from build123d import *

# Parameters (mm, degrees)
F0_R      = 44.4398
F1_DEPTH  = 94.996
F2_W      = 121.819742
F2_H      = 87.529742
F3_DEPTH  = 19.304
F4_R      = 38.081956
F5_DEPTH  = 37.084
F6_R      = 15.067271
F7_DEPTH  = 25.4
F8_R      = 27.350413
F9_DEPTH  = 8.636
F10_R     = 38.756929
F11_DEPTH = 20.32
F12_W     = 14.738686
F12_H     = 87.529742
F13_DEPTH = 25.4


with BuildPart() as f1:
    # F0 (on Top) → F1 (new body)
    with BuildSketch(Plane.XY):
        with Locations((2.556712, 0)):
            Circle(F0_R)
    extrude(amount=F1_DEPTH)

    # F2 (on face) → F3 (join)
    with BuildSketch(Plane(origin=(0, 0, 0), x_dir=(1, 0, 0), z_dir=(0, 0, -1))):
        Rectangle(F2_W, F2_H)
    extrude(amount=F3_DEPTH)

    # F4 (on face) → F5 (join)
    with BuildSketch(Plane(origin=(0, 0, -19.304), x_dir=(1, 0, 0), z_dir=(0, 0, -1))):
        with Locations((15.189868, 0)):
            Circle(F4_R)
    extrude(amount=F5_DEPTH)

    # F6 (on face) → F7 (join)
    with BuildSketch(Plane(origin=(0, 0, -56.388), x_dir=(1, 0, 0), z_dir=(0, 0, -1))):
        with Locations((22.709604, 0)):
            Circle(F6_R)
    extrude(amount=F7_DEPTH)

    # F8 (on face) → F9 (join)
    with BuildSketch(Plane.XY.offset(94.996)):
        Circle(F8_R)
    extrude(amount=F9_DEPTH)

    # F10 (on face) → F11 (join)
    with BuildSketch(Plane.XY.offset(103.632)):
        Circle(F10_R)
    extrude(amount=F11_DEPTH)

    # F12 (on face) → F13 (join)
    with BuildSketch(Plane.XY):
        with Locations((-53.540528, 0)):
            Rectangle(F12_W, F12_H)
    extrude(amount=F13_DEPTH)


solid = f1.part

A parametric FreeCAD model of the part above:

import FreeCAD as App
import Part
import Sketcher
from FreeCAD import Vector
Q = App.Units.Quantity

doc = App.newDocument("Part")
body = doc.addObject("PartDesign::Body", "Body")

# Sketch on XY plane
sketch1 = body.newObject("Sketcher::SketchObject", "Sketch")
sketch1.AttachmentSupport = (doc.getObject("XY_Plane"), [""])
sketch1.MapMode = "FlatFace"
sketch1.addGeometry(Part.Circle(Vector(3, 0, 0), Vector(0, 0, 1), 44), False)
sketch1.addConstraint([
    Sketcher.Constraint("PointOnObject", 0, 3, -1),
    Sketcher.Constraint("Diameter", 0, 88.8796),
    Sketcher.Constraint("DistanceX", -1, 1, 0, 3, 2.556712),
])
pad1 = body.newObject("PartDesign::Pad", "Pad")
pad1.Profile = sketch1
pad1.Length = Q("3.74 in")

# Sketch on XY plane
sketch2 = body.newObject("Sketcher::SketchObject", "Sketch001")
sketch2.AttachmentSupport = (doc.getObject("XY_Plane"), [""])
sketch2.MapMode = "FlatFace"
sketch2.addGeometry([
    Part.LineSegment(Vector(-61, -44, 0), Vector(-61, 44, 0)),
    Part.LineSegment(Vector(-61, 44, 0), Vector(61, 44, 0)),
    Part.LineSegment(Vector(61, 44, 0), Vector(61, -44, 0)),
    Part.LineSegment(Vector(61, -44, 0), Vector(-61, -44, 0)),
], False)
sketch2.addConstraint([
    Sketcher.Constraint("Coincident", 0, 2, 1, 1),
    Sketcher.Constraint("Coincident", 1, 2, 2, 1),
    Sketcher.Constraint("Coincident", 2, 2, 3, 1),
    Sketcher.Constraint("Coincident", 3, 2, 0, 1),
    Sketcher.Constraint("Vertical", 0),
    Sketcher.Constraint("Horizontal", 1),
    Sketcher.Constraint("Vertical", 2),
    Sketcher.Constraint("Horizontal", 3),
    Sketcher.Constraint("Symmetric", 0, 2, 2, 2, -1, 1),
    Sketcher.Constraint("DistanceY", 0, 1, 0, 2, 87.529742),
    Sketcher.Constraint("DistanceX", 1, 1, 1, 2, 121.819742),
])
pad2 = body.newObject("PartDesign::Pad", "Pad001")
pad2.Profile = sketch2
pad2.Length = Q("0.76 in")
pad2.Reversed = True

# Sketch on XY plane
sketch3 = body.newObject("Sketcher::SketchObject", "Sketch002")
sketch3.AttachmentSupport = (doc.getObject("XY_Plane"), [""])
sketch3.MapMode = "FlatFace"
sketch3.AttachmentOffset = App.Placement(Vector(0, 0, -0.76 * 25.4), App.Rotation())
sketch3.addGeometry(Part.Circle(Vector(15, 0, 0), Vector(0, 0, 1), 38), False)
sketch3.addConstraint([
    Sketcher.Constraint("PointOnObject", 0, 3, -1),
    Sketcher.Constraint("Diameter", 0, 76.163912),
    Sketcher.Constraint("DistanceX", -1, 1, 0, 3, 15.189868),
])
pad3 = body.newObject("PartDesign::Pad", "Pad002")
pad3.Profile = sketch3
pad3.Length = Q("1.46 in")
pad3.Reversed = True

# Sketch on XY plane
sketch4 = body.newObject("Sketcher::SketchObject", "Sketch003")
sketch4.AttachmentSupport = (doc.getObject("XY_Plane"), [""])
sketch4.MapMode = "FlatFace"
sketch4.AttachmentOffset = App.Placement(Vector(0, 0, -2.22 * 25.4), App.Rotation())
sketch4.addGeometry(Part.Circle(Vector(23, 0, 0), Vector(0, 0, 1), 15), False)
sketch4.addConstraint([
    Sketcher.Constraint("PointOnObject", 0, 3, -1),
    Sketcher.Constraint("Diameter", 0, 30.134542),
    Sketcher.Constraint("DistanceX", -1, 1, 0, 3, 22.709604),
])
pad4 = body.newObject("PartDesign::Pad", "Pad003")
pad4.Profile = sketch4
pad4.Length = Q("1 in")
pad4.Reversed = True

# Sketch on XY plane
sketch5 = body.newObject("Sketcher::SketchObject", "Sketch004")
sketch5.AttachmentSupport = (doc.getObject("XY_Plane"), [""])
sketch5.MapMode = "FlatFace"
sketch5.AttachmentOffset = App.Placement(Vector(0, 0, 3.74 * 25.4), App.Rotation())
sketch5.addGeometry(Part.Circle(Vector(0, 0, 0), Vector(0, 0, 1), 27), False)
sketch5.addConstraint([
    Sketcher.Constraint("Coincident", 0, 3, -1, 1),
    Sketcher.Constraint("Diameter", 0, 54.700826),
])
pad5 = body.newObject("PartDesign::Pad", "Pad004")
pad5.Profile = sketch5
pad5.Length = Q("0.34 in")

# Sketch on XY plane
sketch6 = body.newObject("Sketcher::SketchObject", "Sketch005")
sketch6.AttachmentSupport = (doc.getObject("XY_Plane"), [""])
sketch6.MapMode = "FlatFace"
sketch6.AttachmentOffset = App.Placement(Vector(0, 0, 4.08 * 25.4), App.Rotation())
sketch6.addGeometry(Part.Circle(Vector(0, 0, 0), Vector(0, 0, 1), 39), False)
sketch6.addConstraint([
    Sketcher.Constraint("Coincident", 0, 3, -1, 1),
    Sketcher.Constraint("Diameter", 0, 77.513858),
])
pad6 = body.newObject("PartDesign::Pad", "Pad005")
pad6.Profile = sketch6
pad6.Length = Q("0.8 in")

# Sketch on XY plane
sketch7 = body.newObject("Sketcher::SketchObject", "Sketch006")
sketch7.AttachmentSupport = (doc.getObject("XY_Plane"), [""])
sketch7.MapMode = "FlatFace"
sketch7.addGeometry([
    Part.LineSegment(Vector(-61, 44, 0), Vector(-61, -44, 0)),
    Part.LineSegment(Vector(-61, -44, 0), Vector(-46, -44, 0)),
    Part.LineSegment(Vector(-46, -44, 0), Vector(-46, 44, 0)),
    Part.LineSegment(Vector(-46, 44, 0), Vector(-61, 44, 0)),
], False)
sketch7.addConstraint([
    Sketcher.Constraint("Coincident", 0, 2, 1, 1),
    Sketcher.Constraint("Coincident", 1, 2, 2, 1),
    Sketcher.Constraint("Coincident", 2, 2, 3, 1),
    Sketcher.Constraint("Coincident", 3, 2, 0, 1),
    Sketcher.Constraint("Vertical", 0),
    Sketcher.Constraint("Horizontal", 1),
    Sketcher.Constraint("Vertical", 2),
    Sketcher.Constraint("Horizontal", 3),
    Sketcher.Constraint("DistanceY", 0, 2, 0, 1, 87.529742),
    Sketcher.Constraint("DistanceX", 1, 1, 1, 2, 14.738686),
    Sketcher.Constraint("DistanceX", 0, 2, -1, 1, 60.909871),
    Sketcher.Constraint("DistanceY", 0, 2, -1, 1, 43.764871),
])
pad7 = body.newObject("PartDesign::Pad", "Pad006")
pad7.Profile = sketch7
pad7.Length = Q("1 in")

doc.recompute()
